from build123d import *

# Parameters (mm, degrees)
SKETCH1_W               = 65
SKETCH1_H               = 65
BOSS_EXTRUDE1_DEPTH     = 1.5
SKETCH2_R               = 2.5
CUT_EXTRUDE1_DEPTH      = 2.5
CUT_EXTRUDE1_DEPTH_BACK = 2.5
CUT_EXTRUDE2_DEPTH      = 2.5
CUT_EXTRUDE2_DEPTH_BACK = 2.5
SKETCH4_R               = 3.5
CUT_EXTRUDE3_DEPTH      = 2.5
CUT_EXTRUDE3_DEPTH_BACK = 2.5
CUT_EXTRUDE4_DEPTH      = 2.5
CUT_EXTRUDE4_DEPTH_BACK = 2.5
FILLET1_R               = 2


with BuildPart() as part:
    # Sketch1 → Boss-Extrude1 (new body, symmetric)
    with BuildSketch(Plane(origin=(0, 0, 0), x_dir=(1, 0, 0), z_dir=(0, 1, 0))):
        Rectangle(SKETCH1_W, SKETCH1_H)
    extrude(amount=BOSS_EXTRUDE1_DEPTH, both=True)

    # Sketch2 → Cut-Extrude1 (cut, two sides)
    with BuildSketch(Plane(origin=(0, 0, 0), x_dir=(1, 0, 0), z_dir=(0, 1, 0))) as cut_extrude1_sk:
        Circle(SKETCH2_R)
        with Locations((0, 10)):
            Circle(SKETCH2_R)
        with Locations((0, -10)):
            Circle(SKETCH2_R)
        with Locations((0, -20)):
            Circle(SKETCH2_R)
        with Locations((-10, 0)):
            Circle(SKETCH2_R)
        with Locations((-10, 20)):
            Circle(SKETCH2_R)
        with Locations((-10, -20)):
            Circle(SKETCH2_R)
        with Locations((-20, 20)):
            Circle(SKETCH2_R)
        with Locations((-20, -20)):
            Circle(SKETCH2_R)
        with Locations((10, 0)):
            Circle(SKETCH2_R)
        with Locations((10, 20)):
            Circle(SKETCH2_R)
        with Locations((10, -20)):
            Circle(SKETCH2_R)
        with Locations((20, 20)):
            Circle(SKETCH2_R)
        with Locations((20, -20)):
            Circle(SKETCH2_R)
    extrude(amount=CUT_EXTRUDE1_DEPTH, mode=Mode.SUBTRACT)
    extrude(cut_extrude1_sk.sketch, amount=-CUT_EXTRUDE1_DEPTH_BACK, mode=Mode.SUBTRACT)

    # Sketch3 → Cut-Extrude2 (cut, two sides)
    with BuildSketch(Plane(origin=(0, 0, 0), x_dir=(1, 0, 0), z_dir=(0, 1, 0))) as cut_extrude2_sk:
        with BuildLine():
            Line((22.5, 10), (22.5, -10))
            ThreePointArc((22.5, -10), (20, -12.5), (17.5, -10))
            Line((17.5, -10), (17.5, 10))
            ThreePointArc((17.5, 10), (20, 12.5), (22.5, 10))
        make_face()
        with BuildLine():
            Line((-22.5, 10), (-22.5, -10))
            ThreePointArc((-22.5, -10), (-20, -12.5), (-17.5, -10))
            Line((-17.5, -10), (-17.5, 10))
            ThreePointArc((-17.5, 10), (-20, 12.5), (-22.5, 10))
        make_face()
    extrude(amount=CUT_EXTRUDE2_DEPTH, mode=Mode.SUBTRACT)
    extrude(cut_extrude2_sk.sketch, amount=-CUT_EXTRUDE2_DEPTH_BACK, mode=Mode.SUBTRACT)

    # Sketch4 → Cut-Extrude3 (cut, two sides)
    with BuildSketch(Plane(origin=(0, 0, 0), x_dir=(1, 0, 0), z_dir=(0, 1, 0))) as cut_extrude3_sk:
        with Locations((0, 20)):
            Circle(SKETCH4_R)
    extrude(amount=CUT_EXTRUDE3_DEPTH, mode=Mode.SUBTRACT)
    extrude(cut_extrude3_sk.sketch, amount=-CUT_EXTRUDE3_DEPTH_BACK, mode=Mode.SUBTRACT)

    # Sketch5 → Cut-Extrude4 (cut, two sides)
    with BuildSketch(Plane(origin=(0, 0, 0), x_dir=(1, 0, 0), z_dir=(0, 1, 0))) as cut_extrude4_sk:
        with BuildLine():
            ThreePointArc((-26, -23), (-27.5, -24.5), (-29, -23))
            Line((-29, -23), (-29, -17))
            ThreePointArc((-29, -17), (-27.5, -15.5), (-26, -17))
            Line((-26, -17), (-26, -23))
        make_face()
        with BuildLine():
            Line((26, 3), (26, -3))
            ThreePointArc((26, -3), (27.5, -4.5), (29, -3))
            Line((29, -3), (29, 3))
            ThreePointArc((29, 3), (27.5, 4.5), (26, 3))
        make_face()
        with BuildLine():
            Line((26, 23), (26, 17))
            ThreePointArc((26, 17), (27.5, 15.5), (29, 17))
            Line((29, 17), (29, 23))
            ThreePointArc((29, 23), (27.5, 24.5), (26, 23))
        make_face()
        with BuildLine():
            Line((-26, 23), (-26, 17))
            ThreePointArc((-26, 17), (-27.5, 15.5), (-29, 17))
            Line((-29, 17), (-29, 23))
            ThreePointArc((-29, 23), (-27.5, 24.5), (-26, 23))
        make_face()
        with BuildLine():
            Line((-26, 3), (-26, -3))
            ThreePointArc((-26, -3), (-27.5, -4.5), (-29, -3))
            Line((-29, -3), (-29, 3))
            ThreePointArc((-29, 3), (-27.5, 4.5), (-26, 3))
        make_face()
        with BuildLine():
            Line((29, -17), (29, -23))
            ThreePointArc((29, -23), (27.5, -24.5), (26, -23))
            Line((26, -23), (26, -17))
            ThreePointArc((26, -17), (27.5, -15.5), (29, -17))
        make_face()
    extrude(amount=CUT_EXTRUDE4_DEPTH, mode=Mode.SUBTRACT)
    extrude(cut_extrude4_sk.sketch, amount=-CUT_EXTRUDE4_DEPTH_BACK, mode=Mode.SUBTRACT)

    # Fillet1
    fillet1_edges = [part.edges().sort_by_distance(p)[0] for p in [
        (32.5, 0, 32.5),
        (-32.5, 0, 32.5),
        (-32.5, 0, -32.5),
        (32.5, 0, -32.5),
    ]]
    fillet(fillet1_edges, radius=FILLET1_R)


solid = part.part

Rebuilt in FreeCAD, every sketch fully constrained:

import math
import FreeCAD as App
import Part
import Sketcher

V = App.Vector
Q = App.Units.Quantity


def edges_at(feature, points):
    """Names of the edges that pass closest to the given points."""
    edges = feature.Shape.Edges
    near = lambda p: min(range(len(edges)), key=lambda i: edges[i].distToShape(Part.Vertex(*p))[0])
    return sorted({f"Edge{near(p) + 1}" for p in points})

doc = App.newDocument("Part")
params = doc.addObject("Spreadsheet::Sheet", "Params")
for row, (alias, value) in enumerate([
    ("sketch1_width", "65 mm"),
    ("pad1_length", "3 mm"),
    ("sketch2_diameter", "5 mm"),
    ("sketch3_radius", "2.5 mm"),
    ("sketch3_height", "20 mm"),
    ("sketch4_diameter", "7 mm"),
    ("sketch5_radius", "1.5 mm"),
    ("sketch5_height", "6 mm"),
    ("fillet_radius", "2 mm"),
], start=1):
    params.set(f"A{row}", alias)
    params.set(f"B{row}", "=" + value)
    params.setAlias(f"B{row}", alias)

body = doc.addObject("PartDesign::Body", "Body")

# Sketch on XZ plane
sketch1 = doc.addObject("Sketcher::SketchObject", "Sketch")
body.addObject(sketch1)
sketch1.AttachmentSupport = (doc.XZ_Plane, [""])
sketch1.MapMode = "FlatFace"
sketch1.addGeometry([
    Part.LineSegment(V(-32.5, -32.5, 0), V(-32.5, 32.5, 0)),
    Part.LineSegment(V(-32.5, 32.5, 0), V(32.5, 32.5, 0)),
    Part.LineSegment(V(32.5, 32.5, 0), V(32.5, -32.5, 0)),
    Part.LineSegment(V(32.5, -32.5, 0), V(-32.5, -32.5, 0)),
], False)
sketch1.addConstraint([
    Sketcher.Constraint("Coincident", 0, 2, 1, 1),
    Sketcher.Constraint("Coincident", 1, 2, 2, 1),
    Sketcher.Constraint("Coincident", 2, 2, 3, 1),
    Sketcher.Constraint("Coincident", 3, 2, 0, 1),
    Sketcher.Constraint("Vertical", 0),
    Sketcher.Constraint("Horizontal", 1),
    Sketcher.Constraint("Vertical", 2),
    Sketcher.Constraint("Horizontal", 3),
    Sketcher.Constraint("Symmetric", 0, 2, 2, 2, -1, 1),
    Sketcher.Constraint("Equal", 3, 0),
    Sketcher.Constraint("DistanceX", 1, 1, 1, 2, Q("65 mm")),
])
sketch1.setExpression("Constraints[10]", "Params.sketch1_width")
pad1 = doc.addObject("PartDesign::Pad", "Pad")
body.addObject(pad1)
pad1.Profile = sketch1
pad1.setExpression("Length", "Params.pad1_length")
pad1.Midplane = True

# Sketch on XZ plane
sketch2 = doc.addObject("Sketcher::SketchObject", "Sketch001")
body.addObject(sketch2)
sketch2.AttachmentSupport = (doc.XZ_Plane, [""])
sketch2.MapMode = "FlatFace"
sketch2.addGeometry([
    Part.Circle(V(0, 0, 0), V(0, 0, 1), 2.5),  # 0
    Part.Circle(V(0, -10, 0), V(0, 0, 1), 2.5),  # 1
    Part.Circle(V(0, 10, 0), V(0, 0, 1), 2.5),  # 2
    Part.Circle(V(0, 20, 0), V(0, 0, 1), 2.5),  # 3
    Part.Circle(V(-10, 0, 0), V(0, 0, 1), 2.5),  # 4
    Part.Circle(V(-10, -20, 0), V(0, 0, 1), 2.5),  # 5
    Part.Circle(V(-10, 20, 0), V(0, 0, 1), 2.5),  # 6
    Part.Circle(V(-20, -20, 0), V(0, 0, 1), 2.5),  # 7
    Part.Circle(V(-20, 20, 0), V(0, 0, 1), 2.5),  # 8
    Part.Circle(V(10, 0, 0), V(0, 0, 1), 2.5),  # 9
    Part.Circle(V(10, -20, 0), V(0, 0, 1), 2.5),  # 10
    Part.Circle(V(10, 20, 0), V(0, 0, 1), 2.5),  # 11
    Part.Circle(V(20, -20, 0), V(0, 0, 1), 2.5),  # 12
    Part.Circle(V(20, 20, 0), V(0, 0, 1), 2.5),  # 13
], False)
sketch2.addConstraint([
    Sketcher.Constraint("Coincident", 0, 3, -1, 1),
    Sketcher.Constraint("Equal", 0, 1),
    Sketcher.Constraint("Equal", 1, 2),
    Sketcher.Constraint("Equal", 2, 3),
    Sketcher.Constraint("Equal", 3, 4),
    Sketcher.Constraint("Equal", 4, 5),
    Sketcher.Constraint("Equal", 5, 6),
    Sketcher.Constraint("Equal", 6, 7),
    Sketcher.Constraint("Equal", 7, 8),
    Sketcher.Constraint("Equal", 8, 9),
    Sketcher.Constraint("Equal", 9, 10),
    Sketcher.Constraint("Equal", 10, 11),
    Sketcher.Constraint("Equal", 11, 12),
    Sketcher.Constraint("Equal", 12, 13),
    Sketcher.Constraint("Symmetric", 1, 3, 2, 3, -1, 1),
    Sketcher.Constraint("Symmetric", 4, 3, 9, 3, -1, 1),
    Sketcher.Constraint("Symmetric", 6, 3, 10, 3, -1, 1),
    Sketcher.Constraint("Symmetric", 5, 3, 11, 3, -1, 1),
    Sketcher.Constraint("Symmetric", 8, 3, 12, 3, -1, 1),
    Sketcher.Constraint("Symmetric", 7, 3, 13, 3, -1, 1),
    Sketcher.Constraint("Symmetric", 5, 3, 10, 3, -2),
    Sketcher.Constraint("Symmetric", 7, 3, 12, 3, -2),
    Sketcher.Constraint("PointOnObject", 1, 3, -2),
    Sketcher.Constraint("PointOnObject", 3, 3, -2),
    Sketcher.Constraint("PointOnObject", 4, 3, -1),
    Sketcher.Constraint("Horizontal", 3, 3, 6, 3),
    Sketcher.Constraint("Horizontal", 5, 3, 7, 3),
    Sketcher.Constraint("Vertical", 4, 3, 5, 3),
    Sketcher.Constraint("Diameter", 0, Q("5 mm")),
    Sketcher.Constraint("DistanceY", 1, 3, -1, 1, Q("10 mm")),
    Sketcher.Constraint("DistanceY", -1, 1, 3, 3, Q("20 mm")),
    Sketcher.Constraint("DistanceX", 4, 3, -1, 1, Q("10 mm")),
    Sketcher.Constraint("DistanceX", 7, 3, -1, 1, Q("20 mm")),
])
sketch2.setExpression("Constraints[28]", "Params.sketch2_diameter")
pocket1 = doc.addObject("PartDesign::Pocket", "Pocket")
body.addObject(pocket1)
pocket1.Profile = sketch2
pocket1.Type = "ThroughAll"
pocket1.Midplane = True

# Sketch on XZ plane
sketch3 = doc.addObject("Sketcher::SketchObject", "Sketch002")
body.addObject(sketch3)
sketch3.AttachmentSupport = (doc.XZ_Plane, [""])
sketch3.MapMode = "FlatFace"
sketch3.addGeometry([
    Part.LineSegment(V(22.5, 10, 0), V(22.5, -10, 0)),  # 0
    Part.ArcOfCircle(Part.Circle(V(20, -10, 0), V(0, 0, 1), 2.5), math.radians(180), math.radians(360)),  # 1
    Part.LineSegment(V(17.5, -10, 0), V(17.5, 10, 0)),  # 2
    Part.ArcOfCircle(Part.Circle(V(20, 10, 0), V(0, 0, 1), 2.5), math.radians(0), math.radians(180)),  # 3
    Part.LineSegment(V(-22.5, -10, 0), V(-22.5, 10, 0)),  # 4
    Part.ArcOfCircle(Part.Circle(V(-20, 10, 0), V(0, 0, 1), 2.5), math.radians(0), math.radians(180)),  # 5
    Part.LineSegment(V(-17.5, 10, 0), V(-17.5, -10, 0)),  # 6
    Part.ArcOfCircle(Part.Circle(V(-20, -10, 0), V(0, 0, 1), 2.5), math.radians(180), math.radians(360)),  # 7
], False)
sketch3.addConstraint([
    Sketcher.Constraint("Tangent", 0, 2, 1, 2),
    Sketcher.Constraint("Tangent", 1, 1, 2, 1),
    Sketcher.Constraint("Tangent", 2, 2, 3, 2),
    Sketcher.Constraint("Tangent", 3, 1, 0, 1),
    Sketcher.Constraint("Tangent", 4, 2, 5, 2),
    Sketcher.Constraint("Tangent", 5, 1, 6, 1),
    Sketcher.Constraint("Tangent", 6, 2, 7, 2),
    Sketcher.Constraint("Tangent", 7, 1, 4, 1),
    Sketcher.Constraint("Vertical", 0),
    Sketcher.Constraint("Vertical", 2),
    Sketcher.Constraint("Vertical", 4),
    Sketcher.Constraint("Vertical", 6),
    Sketcher.Constraint("Equal", 3, 5),
    Sketcher.Constraint("Symmetric", 1, 3, 5, 3, -1, 1),
    Sketcher.Constraint("Horizontal", 3, 3, 5, 3),
    Sketcher.Constraint("Horizontal", 1, 3, 7, 3),
    Sketcher.Constraint("Radius", 1, Q("2.5 mm")),
    Sketcher.Constraint("DistanceY", 0, 2, 0, 1, Q("20 mm")),
    Sketcher.Constraint("DistanceX", -1, 1, 1, 3, Q("20 mm")),
])
sketch3.setExpression("Constraints[16]", "Params.sketch3_radius")
sketch3.setExpression("Constraints[17]", "Params.sketch3_height")
pocket2 = doc.addObject("PartDesign::Pocket", "Pocket001")
body.addObject(pocket2)
pocket2.Profile = sketch3
pocket2.Type = "ThroughAll"
pocket2.Midplane = True

# Sketch on XZ plane
sketch4 = doc.addObject("Sketcher::SketchObject", "Sketch003")
body.addObject(sketch4)
sketch4.AttachmentSupport = (doc.XZ_Plane, [""])
sketch4.MapMode = "FlatFace"
sketch4.addGeometry(Part.Circle(V(0, -20, 0), V(0, 0, 1), 3.5), False)
sketch4.addConstraint([
    Sketcher.Constraint("PointOnObject", 0, 3, -2),
    Sketcher.Constraint("Diameter", 0, Q("7 mm")),
    Sketcher.Constraint("DistanceY", 0, 3, -1, 1, Q("20 mm")),
])
sketch4.setExpression("Constraints[1]", "Params.sketch4_diameter")
pocket3 = doc.addObject("PartDesign::Pocket", "Pocket002")
body.addObject(pocket3)
pocket3.Profile = sketch4
pocket3.Type = "ThroughAll"
pocket3.Midplane = True

# Sketch on XZ plane
sketch5 = doc.addObject("Sketcher::SketchObject", "Sketch004")
body.addObject(sketch5)
sketch5.AttachmentSupport = (doc.XZ_Plane, [""])
sketch5.MapMode = "FlatFace"
sketch5.addGeometry([
    Part.ArcOfCircle(Part.Circle(V(-27.5, 23, 0), V(0, 0, 1), 1.5), math.radians(0), math.radians(180)),  # 0
    Part.LineSegment(V(-26, 23, 0), V(-26, 17, 0)),  # 1
    Part.ArcOfCircle(Part.Circle(V(-27.5, 17, 0), V(0, 0, 1), 1.5), math.radians(180), math.radians(360)),  # 2
    Part.LineSegment(V(-29, 17, 0), V(-29, 23, 0)),  # 3
    Part.LineSegment(V(26, -3, 0), V(26, 3, 0)),  # 4
    Part.ArcOfCircle(Part.Circle(V(27.5, 3, 0), V(0, 0, 1), 1.5), math.radians(0), math.radians(180)),  # 5
    Part.LineSegment(V(29, 3, 0), V(29, -3, 0)),  # 6
    Part.ArcOfCircle(Part.Circle(V(27.5, -3, 0), V(0, 0, 1), 1.5), math.radians(180), math.radians(360)),  # 7
    Part.LineSegment(V(26, -23, 0), V(26, -17, 0)),  # 8
    Part.ArcOfCircle(Part.Circle(V(27.5, -17, 0), V(0, 0, 1), 1.5), math.radians(0), math.radians(180)),  # 9
    Part.LineSegment(V(29, -17, 0), V(29, -23, 0)),  # 10
    Part.ArcOfCircle(Part.Circle(V(27.5, -23, 0), V(0, 0, 1), 1.5), math.radians(180), math.radians(360)),  # 11
    Part.LineSegment(V(-26, -17, 0), V(-26, -23, 0)),  # 12
    Part.ArcOfCircle(Part.Circle(V(-27.5, -23, 0), V(0, 0, 1), 1.5), math.radians(180), math.radians(360)),  # 13
    Part.LineSegment(V(-29, -23, 0), V(-29, -17, 0)),  # 14
    Part.ArcOfCircle(Part.Circle(V(-27.5, -17, 0), V(0, 0, 1), 1.5), math.radians(0), math.radians(180)),  # 15
    Part.LineSegment(V(-26, 3, 0), V(-26, -3, 0)),  # 16
    Part.ArcOfCircle(Part.Circle(V(-27.5, -3, 0), V(0, 0, 1), 1.5), math.radians(180), math.radians(360)),  # 17
    Part.LineSegment(V(-29, -3, 0), V(-29, 3, 0)),  # 18
    Part.ArcOfCircle(Part.Circle(V(-27.5, 3, 0), V(0, 0, 1), 1.5), math.radians(0), math.radians(180)),  # 19
    Part.LineSegment(V(29, 23, 0), V(29, 17, 0)),  # 20
    Part.ArcOfCircle(Part.Circle(V(27.5, 17, 0), V(0, 0, 1), 1.5), math.radians(180), math.radians(360)),  # 21
    Part.LineSegment(V(26, 17, 0), V(26, 23, 0)),  # 22
    Part.ArcOfCircle(Part.Circle(V(27.5, 23, 0), V(0, 0, 1), 1.5), math.radians(0), math.radians(180)),  # 23
], False)
sketch5.addConstraint([
    Sketcher.Constraint("Tangent", 0, 1, 1, 1),
    Sketcher.Constraint("Tangent", 1, 2, 2, 2),
    Sketcher.Constraint("Tangent", 2, 1, 3, 1),
    Sketcher.Constraint("Tangent", 3, 2, 0, 2),
    Sketcher.Constraint("Tangent", 4, 2, 5, 2),
    Sketcher.Constraint("Tangent", 5, 1, 6, 1),
    Sketcher.Constraint("Tangent", 6, 2, 7, 2),
    Sketcher.Constraint("Tangent", 7, 1, 4, 1),
    Sketcher.Constraint("Tangent", 8, 2, 9, 2),
    Sketcher.Constraint("Tangent", 9, 1, 10, 1),
    Sketcher.Constraint("Tangent", 10, 2, 11, 2),
    Sketcher.Constraint("Tangent", 11, 1, 8, 1),
    Sketcher.Constraint("Tangent", 12, 2, 13, 2),
    Sketcher.Constraint("Tangent", 13, 1, 14, 1),
    Sketcher.Constraint("Tangent", 14, 2, 15, 2),
    Sketcher.Constraint("Tangent", 15, 1, 12, 1),
    Sketcher.Constraint("Tangent", 16, 2, 17, 2),
    Sketcher.Constraint("Tangent", 17, 1, 18, 1),
    Sketcher.Constraint("Tangent", 18, 2, 19, 2),
    Sketcher.Constraint("Tangent", 19, 1, 16, 1),
    Sketcher.Constraint("Tangent", 20, 2, 21, 2),
    Sketcher.Constraint("Tangent", 21, 1, 22, 1),
    Sketcher.Constraint("Tangent", 22, 2, 23, 2),
    Sketcher.Constraint("Tangent", 23, 1, 20, 1),
    Sketcher.Constraint("Vertical", 1),
    Sketcher.Constraint("Vertical", 3),
    Sketcher.Constraint("Vertical", 4),
    Sketcher.Constraint("Vertical", 6),
    Sketcher.Constraint("Vertical", 8),
    Sketcher.Constraint("Vertical", 10),
    Sketcher.Constraint("Vertical", 12),
    Sketcher.Constraint("Vertical", 14),
    Sketcher.Constraint("Vertical", 16),
    Sketcher.Constraint("Vertical", 18),
    Sketcher.Constraint("Vertical", 20),
    Sketcher.Constraint("Vertical", 22),
    Sketcher.Constraint("Equal", 2, 5),
    Sketcher.Constraint("Equal", 7, 9),
    Sketcher.Constraint("Equal", 11, 13),
    Sketcher.Constraint("Equal", 15, 17),
    Sketcher.Constraint("Equal", 19, 21),
    Sketcher.Constraint("Symmetric", 2, 3, 9, 3, -1, 1),
    Sketcher.Constraint("Symmetric", 5, 3, 17, 3, -1, 1),
    Sketcher.Constraint("Symmetric", 15, 3, 21, 3, -1, 1),
    Sketcher.Constraint("Symmetric", 11, 3, 13, 3, -2),
    Sketcher.Constraint("Horizontal", 9, 3, 15, 3),
    Sketcher.Constraint("Horizontal", 7, 3, 17, 3),
    Sketcher.Constraint("Horizontal", 5, 3, 19, 3),
    Sketcher.Constraint("Horizontal", 0, 3, 23, 3),
    Sketcher.Constraint("Vertical", 7, 3, 9, 3),
    Sketcher.Constraint("Equal", 3, 4),
    Sketcher.Constraint("Equal", 6, 8),
    Sketcher.Constraint("Radius", 0, Q("1.5 mm")),
    Sketcher.Constraint("DistanceY", 1, 2, 1, 1, Q("6 mm")),
    Sketcher.Constraint("DistanceY", -1, 1, 0, 3, Q("23 mm")),
    Sketcher.Constraint("DistanceX", 0, 1, -1, 1, Q("26 mm")),
])
sketch5.setExpression("Constraints[52]", "Params.sketch5_radius")
sketch5.setExpression("Constraints[53]", "Params.sketch5_height")
pocket4 = doc.addObject("PartDesign::Pocket", "Pocket003")
body.addObject(pocket4)
pocket4.Profile = sketch5
pocket4.Type = "ThroughAll"
pocket4.Midplane = True
doc.recompute()

fillet = doc.addObject("PartDesign::Fillet", "Fillet")
body.addObject(fillet)
fillet.Base = (pocket4, edges_at(pocket4, [
    (32.5, 0, 32.5),
    (-32.5, 0, 32.5),
    (-32.5, 0, -32.5),
    (32.5, 0, -32.5),
]))
fillet.setExpression("Radius", "Params.fillet_radius")

doc.recompute()
